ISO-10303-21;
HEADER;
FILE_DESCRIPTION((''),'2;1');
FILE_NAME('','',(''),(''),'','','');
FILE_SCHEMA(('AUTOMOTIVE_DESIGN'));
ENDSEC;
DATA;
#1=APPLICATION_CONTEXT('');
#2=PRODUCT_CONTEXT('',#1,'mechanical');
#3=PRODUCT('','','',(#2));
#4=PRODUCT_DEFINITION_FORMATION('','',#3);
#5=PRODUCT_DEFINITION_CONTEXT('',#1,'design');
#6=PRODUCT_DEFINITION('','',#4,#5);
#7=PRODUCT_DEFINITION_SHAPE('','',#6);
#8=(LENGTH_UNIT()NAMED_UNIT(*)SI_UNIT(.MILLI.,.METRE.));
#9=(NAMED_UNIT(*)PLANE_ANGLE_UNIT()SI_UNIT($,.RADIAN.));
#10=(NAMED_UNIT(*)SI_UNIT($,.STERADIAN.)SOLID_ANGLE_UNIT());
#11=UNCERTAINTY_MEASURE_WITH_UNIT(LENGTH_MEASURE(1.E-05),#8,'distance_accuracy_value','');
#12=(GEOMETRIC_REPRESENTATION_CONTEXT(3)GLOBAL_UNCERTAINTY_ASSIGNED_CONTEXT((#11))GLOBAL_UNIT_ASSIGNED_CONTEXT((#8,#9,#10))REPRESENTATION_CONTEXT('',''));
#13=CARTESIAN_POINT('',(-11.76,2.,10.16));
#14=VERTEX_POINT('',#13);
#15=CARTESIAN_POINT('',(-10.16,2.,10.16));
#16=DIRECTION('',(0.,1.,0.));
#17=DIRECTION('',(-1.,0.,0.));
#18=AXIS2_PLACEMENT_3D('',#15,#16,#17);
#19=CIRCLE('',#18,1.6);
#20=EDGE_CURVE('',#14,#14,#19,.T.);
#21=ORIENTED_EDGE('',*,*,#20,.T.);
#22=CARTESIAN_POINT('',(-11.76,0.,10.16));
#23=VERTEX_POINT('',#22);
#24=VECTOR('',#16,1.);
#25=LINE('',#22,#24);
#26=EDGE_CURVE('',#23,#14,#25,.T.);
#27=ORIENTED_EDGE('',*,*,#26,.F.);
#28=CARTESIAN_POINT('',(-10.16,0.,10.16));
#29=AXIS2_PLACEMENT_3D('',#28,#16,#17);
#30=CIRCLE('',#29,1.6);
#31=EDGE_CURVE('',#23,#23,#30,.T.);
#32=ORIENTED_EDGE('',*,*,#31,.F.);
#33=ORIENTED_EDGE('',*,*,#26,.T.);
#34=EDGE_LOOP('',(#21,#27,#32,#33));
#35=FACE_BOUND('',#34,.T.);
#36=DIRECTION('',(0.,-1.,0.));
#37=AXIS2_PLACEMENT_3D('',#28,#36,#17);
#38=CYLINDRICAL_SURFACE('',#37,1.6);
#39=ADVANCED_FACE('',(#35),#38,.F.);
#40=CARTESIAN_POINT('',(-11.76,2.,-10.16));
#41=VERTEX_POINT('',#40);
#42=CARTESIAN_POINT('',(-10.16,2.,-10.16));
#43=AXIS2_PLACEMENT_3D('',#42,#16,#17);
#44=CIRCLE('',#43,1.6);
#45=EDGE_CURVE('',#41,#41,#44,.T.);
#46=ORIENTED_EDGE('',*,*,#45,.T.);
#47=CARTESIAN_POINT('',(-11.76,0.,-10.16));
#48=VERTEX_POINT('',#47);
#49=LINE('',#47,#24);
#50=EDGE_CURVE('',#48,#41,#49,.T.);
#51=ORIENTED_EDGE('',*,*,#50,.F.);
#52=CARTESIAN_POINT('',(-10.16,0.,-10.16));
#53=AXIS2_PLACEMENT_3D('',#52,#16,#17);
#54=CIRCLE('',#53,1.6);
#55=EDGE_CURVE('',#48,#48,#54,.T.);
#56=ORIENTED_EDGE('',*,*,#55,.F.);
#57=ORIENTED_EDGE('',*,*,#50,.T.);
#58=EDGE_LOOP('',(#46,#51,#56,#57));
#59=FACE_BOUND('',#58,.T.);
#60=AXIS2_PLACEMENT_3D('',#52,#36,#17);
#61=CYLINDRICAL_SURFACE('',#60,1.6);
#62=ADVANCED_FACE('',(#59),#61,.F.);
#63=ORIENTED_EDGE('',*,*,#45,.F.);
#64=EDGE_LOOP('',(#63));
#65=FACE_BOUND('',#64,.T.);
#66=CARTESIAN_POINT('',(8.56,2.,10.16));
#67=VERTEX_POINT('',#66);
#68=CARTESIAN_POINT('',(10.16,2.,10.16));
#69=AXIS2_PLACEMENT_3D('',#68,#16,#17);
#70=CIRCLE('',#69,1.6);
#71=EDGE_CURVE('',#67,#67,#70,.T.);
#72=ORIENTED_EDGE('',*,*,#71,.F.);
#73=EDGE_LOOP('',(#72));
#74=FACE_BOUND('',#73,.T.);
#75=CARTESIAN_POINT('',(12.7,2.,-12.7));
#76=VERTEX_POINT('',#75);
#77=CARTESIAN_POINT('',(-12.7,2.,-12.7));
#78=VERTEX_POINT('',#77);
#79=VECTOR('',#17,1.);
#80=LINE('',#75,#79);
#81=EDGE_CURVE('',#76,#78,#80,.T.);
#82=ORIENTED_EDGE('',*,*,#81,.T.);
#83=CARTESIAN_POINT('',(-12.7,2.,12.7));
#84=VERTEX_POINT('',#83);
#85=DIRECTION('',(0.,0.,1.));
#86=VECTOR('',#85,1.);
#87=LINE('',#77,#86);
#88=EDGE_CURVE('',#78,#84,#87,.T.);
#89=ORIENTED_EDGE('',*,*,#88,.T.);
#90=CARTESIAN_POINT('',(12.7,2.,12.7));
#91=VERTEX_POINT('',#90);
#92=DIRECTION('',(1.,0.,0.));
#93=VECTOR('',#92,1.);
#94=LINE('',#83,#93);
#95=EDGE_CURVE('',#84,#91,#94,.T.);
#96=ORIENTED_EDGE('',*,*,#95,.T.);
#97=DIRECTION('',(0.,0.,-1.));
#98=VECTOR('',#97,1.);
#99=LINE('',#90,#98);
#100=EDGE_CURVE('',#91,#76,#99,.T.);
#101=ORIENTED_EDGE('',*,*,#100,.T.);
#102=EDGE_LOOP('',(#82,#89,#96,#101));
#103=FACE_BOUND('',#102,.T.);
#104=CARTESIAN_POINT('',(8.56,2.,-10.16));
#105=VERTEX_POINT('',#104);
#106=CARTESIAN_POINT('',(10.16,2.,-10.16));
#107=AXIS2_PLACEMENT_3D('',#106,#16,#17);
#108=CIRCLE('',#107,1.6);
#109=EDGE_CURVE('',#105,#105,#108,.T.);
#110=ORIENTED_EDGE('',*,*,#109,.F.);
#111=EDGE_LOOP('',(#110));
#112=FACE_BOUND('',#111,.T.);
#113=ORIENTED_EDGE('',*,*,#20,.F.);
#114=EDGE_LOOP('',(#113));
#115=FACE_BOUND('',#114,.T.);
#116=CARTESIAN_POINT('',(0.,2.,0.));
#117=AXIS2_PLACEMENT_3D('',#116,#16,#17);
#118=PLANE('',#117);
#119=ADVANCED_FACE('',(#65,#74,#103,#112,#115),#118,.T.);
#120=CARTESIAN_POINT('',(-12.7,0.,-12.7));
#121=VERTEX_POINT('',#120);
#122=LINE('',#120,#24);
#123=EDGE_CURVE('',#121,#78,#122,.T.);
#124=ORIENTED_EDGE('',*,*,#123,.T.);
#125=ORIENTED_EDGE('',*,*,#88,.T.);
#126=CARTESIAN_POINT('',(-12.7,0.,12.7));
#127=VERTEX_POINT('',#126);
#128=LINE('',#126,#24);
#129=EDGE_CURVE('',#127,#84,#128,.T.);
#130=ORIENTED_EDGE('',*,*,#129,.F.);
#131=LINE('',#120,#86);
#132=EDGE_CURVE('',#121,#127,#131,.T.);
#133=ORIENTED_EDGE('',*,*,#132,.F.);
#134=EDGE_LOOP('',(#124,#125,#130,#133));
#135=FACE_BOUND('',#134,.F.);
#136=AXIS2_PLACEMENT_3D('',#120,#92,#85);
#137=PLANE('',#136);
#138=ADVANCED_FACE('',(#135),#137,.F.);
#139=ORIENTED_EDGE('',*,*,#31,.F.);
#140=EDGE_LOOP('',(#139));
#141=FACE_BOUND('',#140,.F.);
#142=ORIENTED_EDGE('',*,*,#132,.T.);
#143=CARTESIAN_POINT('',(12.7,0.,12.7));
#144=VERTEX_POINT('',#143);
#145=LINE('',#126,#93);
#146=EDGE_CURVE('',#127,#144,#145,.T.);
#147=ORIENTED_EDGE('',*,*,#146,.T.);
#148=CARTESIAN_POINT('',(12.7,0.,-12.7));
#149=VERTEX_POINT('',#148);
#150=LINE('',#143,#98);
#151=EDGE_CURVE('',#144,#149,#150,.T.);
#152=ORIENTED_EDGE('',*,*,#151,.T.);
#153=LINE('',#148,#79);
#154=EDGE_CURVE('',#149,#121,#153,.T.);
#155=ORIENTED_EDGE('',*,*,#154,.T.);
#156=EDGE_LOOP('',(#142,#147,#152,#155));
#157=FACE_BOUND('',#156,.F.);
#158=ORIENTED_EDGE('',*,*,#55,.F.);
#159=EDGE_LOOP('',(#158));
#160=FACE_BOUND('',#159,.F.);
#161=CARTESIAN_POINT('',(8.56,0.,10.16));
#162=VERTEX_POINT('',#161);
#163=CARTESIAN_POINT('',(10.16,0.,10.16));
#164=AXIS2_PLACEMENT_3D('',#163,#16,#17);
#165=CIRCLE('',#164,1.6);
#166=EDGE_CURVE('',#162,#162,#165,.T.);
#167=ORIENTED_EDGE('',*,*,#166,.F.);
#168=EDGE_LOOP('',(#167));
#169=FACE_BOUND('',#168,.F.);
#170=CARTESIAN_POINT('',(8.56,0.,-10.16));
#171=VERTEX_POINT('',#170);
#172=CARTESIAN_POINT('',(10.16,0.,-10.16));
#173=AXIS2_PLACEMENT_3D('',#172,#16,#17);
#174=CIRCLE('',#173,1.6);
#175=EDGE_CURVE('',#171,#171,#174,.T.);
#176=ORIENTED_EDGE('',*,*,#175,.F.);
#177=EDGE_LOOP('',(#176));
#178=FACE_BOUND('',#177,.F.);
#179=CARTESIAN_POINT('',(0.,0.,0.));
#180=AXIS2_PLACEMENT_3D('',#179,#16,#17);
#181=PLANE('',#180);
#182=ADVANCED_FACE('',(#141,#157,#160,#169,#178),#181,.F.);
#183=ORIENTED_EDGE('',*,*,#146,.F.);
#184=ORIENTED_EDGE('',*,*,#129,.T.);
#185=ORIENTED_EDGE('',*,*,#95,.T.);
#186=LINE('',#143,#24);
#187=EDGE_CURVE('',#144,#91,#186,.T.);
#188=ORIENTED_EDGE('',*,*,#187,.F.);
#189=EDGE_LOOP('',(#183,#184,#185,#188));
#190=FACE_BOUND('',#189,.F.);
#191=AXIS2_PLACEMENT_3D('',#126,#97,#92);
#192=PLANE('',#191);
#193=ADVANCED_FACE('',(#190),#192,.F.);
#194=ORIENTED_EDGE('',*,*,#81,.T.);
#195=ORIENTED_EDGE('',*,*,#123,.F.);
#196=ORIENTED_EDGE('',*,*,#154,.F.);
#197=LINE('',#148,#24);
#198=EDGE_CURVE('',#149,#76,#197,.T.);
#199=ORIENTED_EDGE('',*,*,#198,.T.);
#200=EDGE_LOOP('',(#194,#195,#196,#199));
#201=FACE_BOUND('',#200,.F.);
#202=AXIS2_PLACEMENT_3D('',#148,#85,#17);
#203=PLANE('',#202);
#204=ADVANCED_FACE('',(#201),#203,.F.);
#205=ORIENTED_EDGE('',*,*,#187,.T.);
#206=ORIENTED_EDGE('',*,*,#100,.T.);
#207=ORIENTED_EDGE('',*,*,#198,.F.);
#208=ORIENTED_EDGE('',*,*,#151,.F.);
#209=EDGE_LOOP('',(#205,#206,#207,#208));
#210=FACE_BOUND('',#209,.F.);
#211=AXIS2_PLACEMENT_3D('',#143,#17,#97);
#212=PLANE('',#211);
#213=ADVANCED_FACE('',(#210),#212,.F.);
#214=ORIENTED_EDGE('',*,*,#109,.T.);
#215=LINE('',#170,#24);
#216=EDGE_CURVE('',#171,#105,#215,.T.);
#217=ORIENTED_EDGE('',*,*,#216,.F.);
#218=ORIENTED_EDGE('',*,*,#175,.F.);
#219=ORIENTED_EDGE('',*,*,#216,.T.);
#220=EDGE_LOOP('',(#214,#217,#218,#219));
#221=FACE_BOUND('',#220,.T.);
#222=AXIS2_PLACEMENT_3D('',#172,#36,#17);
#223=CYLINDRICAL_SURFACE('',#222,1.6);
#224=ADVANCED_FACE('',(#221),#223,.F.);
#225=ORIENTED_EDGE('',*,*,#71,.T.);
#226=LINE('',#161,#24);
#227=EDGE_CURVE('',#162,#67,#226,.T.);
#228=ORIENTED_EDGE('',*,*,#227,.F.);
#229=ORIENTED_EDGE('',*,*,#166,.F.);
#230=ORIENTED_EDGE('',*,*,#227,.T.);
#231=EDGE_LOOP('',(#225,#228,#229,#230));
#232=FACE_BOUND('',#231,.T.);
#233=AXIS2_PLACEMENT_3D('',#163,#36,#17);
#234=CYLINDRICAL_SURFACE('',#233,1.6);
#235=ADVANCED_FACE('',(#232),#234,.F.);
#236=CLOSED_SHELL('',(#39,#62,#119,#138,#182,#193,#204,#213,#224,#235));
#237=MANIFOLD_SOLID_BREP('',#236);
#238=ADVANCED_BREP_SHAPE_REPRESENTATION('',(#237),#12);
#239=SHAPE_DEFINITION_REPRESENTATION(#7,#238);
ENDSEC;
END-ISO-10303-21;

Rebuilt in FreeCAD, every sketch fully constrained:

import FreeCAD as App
import Part
import Sketcher
from FreeCAD import Vector
Q = App.Units.Quantity


def add_polygon(sketch, points):
    """Adds a closed chain of lines whose ends are joined by coincident constraints."""
    first, n = sketch.GeometryCount, len(points)
    for a, b in zip(points, points[1:] + points[:1]):
        sketch.addGeometry(Part.LineSegment(App.Vector(*a, 0), App.Vector(*b, 0)), False)
    for i in range(n):
        sketch.addConstraint(Sketcher.Constraint("Coincident", first + i, 2, first + (i + 1) % n, 1))

doc = App.newDocument("Part")
body = doc.addObject("PartDesign::Body", "Body")

sketch1 = body.newObject("Sketcher::SketchObject", "Sketch")
sketch1.AttachmentSupport = (doc.getObject("XZ_Plane"), [""])
sketch1.MapMode = "FlatFace"
add_polygon(sketch1, [(-12.7, -12.7), (-12.7, 12.7), (12.7, 12.7), (12.7, -12.7)])
sketch1.addGeometry(Part.Circle(Vector(10.16, -10.16, 0), Vector(0, 0, 1), 1.6), False)
sketch1.addGeometry(Part.Circle(Vector(-10.16, -10.16, 0), Vector(0, 0, 1), 1.6), False)
sketch1.addGeometry(Part.Circle(Vector(10.16, 10.16, 0), Vector(0, 0, 1), 1.6), False)
sketch1.addGeometry(Part.Circle(Vector(-10.16, 10.16, 0), Vector(0, 0, 1), 1.6), False)
sketch1.addConstraint([
    Sketcher.Constraint("Vertical", 0),
    Sketcher.Constraint("Horizontal", 1),
    Sketcher.Constraint("Vertical", 2),
    Sketcher.Constraint("Horizontal", 3),
    Sketcher.Constraint("Equal", 4, 5),
    Sketcher.Constraint("Equal", 5, 6),
    Sketcher.Constraint("Equal", 6, 7),
    Sketcher.Constraint("Symmetric", 5, 3, 6, 3, -1, 1),
    Sketcher.Constraint("Symmetric", 4, 3, 7, 3, -1, 1),
    Sketcher.Constraint("Symmetric", 0, 2, 2, 2, -1, 1),
    Sketcher.Constraint("Symmetric", 4, 3, 5, 3, -2),
    Sketcher.Constraint("Equal", 3, 0),
    Sketcher.Constraint("Diameter", 4, Q("3.2 mm")),
    Sketcher.Constraint("DistanceX", 1, 1, 1, 2, Q("25.4 mm")),
    Sketcher.Constraint("DistanceX", 0, 2, 7, 3, Q("2.54 mm")),
    Sketcher.Constraint("DistanceY", 7, 3, 0, 2, Q("2.54 mm")),
])
pad1 = body.newObject("PartDesign::Pad", "Pad")
pad1.Profile = sketch1
pad1.Length = 2
pad1.Reversed = True

doc.recompute()
